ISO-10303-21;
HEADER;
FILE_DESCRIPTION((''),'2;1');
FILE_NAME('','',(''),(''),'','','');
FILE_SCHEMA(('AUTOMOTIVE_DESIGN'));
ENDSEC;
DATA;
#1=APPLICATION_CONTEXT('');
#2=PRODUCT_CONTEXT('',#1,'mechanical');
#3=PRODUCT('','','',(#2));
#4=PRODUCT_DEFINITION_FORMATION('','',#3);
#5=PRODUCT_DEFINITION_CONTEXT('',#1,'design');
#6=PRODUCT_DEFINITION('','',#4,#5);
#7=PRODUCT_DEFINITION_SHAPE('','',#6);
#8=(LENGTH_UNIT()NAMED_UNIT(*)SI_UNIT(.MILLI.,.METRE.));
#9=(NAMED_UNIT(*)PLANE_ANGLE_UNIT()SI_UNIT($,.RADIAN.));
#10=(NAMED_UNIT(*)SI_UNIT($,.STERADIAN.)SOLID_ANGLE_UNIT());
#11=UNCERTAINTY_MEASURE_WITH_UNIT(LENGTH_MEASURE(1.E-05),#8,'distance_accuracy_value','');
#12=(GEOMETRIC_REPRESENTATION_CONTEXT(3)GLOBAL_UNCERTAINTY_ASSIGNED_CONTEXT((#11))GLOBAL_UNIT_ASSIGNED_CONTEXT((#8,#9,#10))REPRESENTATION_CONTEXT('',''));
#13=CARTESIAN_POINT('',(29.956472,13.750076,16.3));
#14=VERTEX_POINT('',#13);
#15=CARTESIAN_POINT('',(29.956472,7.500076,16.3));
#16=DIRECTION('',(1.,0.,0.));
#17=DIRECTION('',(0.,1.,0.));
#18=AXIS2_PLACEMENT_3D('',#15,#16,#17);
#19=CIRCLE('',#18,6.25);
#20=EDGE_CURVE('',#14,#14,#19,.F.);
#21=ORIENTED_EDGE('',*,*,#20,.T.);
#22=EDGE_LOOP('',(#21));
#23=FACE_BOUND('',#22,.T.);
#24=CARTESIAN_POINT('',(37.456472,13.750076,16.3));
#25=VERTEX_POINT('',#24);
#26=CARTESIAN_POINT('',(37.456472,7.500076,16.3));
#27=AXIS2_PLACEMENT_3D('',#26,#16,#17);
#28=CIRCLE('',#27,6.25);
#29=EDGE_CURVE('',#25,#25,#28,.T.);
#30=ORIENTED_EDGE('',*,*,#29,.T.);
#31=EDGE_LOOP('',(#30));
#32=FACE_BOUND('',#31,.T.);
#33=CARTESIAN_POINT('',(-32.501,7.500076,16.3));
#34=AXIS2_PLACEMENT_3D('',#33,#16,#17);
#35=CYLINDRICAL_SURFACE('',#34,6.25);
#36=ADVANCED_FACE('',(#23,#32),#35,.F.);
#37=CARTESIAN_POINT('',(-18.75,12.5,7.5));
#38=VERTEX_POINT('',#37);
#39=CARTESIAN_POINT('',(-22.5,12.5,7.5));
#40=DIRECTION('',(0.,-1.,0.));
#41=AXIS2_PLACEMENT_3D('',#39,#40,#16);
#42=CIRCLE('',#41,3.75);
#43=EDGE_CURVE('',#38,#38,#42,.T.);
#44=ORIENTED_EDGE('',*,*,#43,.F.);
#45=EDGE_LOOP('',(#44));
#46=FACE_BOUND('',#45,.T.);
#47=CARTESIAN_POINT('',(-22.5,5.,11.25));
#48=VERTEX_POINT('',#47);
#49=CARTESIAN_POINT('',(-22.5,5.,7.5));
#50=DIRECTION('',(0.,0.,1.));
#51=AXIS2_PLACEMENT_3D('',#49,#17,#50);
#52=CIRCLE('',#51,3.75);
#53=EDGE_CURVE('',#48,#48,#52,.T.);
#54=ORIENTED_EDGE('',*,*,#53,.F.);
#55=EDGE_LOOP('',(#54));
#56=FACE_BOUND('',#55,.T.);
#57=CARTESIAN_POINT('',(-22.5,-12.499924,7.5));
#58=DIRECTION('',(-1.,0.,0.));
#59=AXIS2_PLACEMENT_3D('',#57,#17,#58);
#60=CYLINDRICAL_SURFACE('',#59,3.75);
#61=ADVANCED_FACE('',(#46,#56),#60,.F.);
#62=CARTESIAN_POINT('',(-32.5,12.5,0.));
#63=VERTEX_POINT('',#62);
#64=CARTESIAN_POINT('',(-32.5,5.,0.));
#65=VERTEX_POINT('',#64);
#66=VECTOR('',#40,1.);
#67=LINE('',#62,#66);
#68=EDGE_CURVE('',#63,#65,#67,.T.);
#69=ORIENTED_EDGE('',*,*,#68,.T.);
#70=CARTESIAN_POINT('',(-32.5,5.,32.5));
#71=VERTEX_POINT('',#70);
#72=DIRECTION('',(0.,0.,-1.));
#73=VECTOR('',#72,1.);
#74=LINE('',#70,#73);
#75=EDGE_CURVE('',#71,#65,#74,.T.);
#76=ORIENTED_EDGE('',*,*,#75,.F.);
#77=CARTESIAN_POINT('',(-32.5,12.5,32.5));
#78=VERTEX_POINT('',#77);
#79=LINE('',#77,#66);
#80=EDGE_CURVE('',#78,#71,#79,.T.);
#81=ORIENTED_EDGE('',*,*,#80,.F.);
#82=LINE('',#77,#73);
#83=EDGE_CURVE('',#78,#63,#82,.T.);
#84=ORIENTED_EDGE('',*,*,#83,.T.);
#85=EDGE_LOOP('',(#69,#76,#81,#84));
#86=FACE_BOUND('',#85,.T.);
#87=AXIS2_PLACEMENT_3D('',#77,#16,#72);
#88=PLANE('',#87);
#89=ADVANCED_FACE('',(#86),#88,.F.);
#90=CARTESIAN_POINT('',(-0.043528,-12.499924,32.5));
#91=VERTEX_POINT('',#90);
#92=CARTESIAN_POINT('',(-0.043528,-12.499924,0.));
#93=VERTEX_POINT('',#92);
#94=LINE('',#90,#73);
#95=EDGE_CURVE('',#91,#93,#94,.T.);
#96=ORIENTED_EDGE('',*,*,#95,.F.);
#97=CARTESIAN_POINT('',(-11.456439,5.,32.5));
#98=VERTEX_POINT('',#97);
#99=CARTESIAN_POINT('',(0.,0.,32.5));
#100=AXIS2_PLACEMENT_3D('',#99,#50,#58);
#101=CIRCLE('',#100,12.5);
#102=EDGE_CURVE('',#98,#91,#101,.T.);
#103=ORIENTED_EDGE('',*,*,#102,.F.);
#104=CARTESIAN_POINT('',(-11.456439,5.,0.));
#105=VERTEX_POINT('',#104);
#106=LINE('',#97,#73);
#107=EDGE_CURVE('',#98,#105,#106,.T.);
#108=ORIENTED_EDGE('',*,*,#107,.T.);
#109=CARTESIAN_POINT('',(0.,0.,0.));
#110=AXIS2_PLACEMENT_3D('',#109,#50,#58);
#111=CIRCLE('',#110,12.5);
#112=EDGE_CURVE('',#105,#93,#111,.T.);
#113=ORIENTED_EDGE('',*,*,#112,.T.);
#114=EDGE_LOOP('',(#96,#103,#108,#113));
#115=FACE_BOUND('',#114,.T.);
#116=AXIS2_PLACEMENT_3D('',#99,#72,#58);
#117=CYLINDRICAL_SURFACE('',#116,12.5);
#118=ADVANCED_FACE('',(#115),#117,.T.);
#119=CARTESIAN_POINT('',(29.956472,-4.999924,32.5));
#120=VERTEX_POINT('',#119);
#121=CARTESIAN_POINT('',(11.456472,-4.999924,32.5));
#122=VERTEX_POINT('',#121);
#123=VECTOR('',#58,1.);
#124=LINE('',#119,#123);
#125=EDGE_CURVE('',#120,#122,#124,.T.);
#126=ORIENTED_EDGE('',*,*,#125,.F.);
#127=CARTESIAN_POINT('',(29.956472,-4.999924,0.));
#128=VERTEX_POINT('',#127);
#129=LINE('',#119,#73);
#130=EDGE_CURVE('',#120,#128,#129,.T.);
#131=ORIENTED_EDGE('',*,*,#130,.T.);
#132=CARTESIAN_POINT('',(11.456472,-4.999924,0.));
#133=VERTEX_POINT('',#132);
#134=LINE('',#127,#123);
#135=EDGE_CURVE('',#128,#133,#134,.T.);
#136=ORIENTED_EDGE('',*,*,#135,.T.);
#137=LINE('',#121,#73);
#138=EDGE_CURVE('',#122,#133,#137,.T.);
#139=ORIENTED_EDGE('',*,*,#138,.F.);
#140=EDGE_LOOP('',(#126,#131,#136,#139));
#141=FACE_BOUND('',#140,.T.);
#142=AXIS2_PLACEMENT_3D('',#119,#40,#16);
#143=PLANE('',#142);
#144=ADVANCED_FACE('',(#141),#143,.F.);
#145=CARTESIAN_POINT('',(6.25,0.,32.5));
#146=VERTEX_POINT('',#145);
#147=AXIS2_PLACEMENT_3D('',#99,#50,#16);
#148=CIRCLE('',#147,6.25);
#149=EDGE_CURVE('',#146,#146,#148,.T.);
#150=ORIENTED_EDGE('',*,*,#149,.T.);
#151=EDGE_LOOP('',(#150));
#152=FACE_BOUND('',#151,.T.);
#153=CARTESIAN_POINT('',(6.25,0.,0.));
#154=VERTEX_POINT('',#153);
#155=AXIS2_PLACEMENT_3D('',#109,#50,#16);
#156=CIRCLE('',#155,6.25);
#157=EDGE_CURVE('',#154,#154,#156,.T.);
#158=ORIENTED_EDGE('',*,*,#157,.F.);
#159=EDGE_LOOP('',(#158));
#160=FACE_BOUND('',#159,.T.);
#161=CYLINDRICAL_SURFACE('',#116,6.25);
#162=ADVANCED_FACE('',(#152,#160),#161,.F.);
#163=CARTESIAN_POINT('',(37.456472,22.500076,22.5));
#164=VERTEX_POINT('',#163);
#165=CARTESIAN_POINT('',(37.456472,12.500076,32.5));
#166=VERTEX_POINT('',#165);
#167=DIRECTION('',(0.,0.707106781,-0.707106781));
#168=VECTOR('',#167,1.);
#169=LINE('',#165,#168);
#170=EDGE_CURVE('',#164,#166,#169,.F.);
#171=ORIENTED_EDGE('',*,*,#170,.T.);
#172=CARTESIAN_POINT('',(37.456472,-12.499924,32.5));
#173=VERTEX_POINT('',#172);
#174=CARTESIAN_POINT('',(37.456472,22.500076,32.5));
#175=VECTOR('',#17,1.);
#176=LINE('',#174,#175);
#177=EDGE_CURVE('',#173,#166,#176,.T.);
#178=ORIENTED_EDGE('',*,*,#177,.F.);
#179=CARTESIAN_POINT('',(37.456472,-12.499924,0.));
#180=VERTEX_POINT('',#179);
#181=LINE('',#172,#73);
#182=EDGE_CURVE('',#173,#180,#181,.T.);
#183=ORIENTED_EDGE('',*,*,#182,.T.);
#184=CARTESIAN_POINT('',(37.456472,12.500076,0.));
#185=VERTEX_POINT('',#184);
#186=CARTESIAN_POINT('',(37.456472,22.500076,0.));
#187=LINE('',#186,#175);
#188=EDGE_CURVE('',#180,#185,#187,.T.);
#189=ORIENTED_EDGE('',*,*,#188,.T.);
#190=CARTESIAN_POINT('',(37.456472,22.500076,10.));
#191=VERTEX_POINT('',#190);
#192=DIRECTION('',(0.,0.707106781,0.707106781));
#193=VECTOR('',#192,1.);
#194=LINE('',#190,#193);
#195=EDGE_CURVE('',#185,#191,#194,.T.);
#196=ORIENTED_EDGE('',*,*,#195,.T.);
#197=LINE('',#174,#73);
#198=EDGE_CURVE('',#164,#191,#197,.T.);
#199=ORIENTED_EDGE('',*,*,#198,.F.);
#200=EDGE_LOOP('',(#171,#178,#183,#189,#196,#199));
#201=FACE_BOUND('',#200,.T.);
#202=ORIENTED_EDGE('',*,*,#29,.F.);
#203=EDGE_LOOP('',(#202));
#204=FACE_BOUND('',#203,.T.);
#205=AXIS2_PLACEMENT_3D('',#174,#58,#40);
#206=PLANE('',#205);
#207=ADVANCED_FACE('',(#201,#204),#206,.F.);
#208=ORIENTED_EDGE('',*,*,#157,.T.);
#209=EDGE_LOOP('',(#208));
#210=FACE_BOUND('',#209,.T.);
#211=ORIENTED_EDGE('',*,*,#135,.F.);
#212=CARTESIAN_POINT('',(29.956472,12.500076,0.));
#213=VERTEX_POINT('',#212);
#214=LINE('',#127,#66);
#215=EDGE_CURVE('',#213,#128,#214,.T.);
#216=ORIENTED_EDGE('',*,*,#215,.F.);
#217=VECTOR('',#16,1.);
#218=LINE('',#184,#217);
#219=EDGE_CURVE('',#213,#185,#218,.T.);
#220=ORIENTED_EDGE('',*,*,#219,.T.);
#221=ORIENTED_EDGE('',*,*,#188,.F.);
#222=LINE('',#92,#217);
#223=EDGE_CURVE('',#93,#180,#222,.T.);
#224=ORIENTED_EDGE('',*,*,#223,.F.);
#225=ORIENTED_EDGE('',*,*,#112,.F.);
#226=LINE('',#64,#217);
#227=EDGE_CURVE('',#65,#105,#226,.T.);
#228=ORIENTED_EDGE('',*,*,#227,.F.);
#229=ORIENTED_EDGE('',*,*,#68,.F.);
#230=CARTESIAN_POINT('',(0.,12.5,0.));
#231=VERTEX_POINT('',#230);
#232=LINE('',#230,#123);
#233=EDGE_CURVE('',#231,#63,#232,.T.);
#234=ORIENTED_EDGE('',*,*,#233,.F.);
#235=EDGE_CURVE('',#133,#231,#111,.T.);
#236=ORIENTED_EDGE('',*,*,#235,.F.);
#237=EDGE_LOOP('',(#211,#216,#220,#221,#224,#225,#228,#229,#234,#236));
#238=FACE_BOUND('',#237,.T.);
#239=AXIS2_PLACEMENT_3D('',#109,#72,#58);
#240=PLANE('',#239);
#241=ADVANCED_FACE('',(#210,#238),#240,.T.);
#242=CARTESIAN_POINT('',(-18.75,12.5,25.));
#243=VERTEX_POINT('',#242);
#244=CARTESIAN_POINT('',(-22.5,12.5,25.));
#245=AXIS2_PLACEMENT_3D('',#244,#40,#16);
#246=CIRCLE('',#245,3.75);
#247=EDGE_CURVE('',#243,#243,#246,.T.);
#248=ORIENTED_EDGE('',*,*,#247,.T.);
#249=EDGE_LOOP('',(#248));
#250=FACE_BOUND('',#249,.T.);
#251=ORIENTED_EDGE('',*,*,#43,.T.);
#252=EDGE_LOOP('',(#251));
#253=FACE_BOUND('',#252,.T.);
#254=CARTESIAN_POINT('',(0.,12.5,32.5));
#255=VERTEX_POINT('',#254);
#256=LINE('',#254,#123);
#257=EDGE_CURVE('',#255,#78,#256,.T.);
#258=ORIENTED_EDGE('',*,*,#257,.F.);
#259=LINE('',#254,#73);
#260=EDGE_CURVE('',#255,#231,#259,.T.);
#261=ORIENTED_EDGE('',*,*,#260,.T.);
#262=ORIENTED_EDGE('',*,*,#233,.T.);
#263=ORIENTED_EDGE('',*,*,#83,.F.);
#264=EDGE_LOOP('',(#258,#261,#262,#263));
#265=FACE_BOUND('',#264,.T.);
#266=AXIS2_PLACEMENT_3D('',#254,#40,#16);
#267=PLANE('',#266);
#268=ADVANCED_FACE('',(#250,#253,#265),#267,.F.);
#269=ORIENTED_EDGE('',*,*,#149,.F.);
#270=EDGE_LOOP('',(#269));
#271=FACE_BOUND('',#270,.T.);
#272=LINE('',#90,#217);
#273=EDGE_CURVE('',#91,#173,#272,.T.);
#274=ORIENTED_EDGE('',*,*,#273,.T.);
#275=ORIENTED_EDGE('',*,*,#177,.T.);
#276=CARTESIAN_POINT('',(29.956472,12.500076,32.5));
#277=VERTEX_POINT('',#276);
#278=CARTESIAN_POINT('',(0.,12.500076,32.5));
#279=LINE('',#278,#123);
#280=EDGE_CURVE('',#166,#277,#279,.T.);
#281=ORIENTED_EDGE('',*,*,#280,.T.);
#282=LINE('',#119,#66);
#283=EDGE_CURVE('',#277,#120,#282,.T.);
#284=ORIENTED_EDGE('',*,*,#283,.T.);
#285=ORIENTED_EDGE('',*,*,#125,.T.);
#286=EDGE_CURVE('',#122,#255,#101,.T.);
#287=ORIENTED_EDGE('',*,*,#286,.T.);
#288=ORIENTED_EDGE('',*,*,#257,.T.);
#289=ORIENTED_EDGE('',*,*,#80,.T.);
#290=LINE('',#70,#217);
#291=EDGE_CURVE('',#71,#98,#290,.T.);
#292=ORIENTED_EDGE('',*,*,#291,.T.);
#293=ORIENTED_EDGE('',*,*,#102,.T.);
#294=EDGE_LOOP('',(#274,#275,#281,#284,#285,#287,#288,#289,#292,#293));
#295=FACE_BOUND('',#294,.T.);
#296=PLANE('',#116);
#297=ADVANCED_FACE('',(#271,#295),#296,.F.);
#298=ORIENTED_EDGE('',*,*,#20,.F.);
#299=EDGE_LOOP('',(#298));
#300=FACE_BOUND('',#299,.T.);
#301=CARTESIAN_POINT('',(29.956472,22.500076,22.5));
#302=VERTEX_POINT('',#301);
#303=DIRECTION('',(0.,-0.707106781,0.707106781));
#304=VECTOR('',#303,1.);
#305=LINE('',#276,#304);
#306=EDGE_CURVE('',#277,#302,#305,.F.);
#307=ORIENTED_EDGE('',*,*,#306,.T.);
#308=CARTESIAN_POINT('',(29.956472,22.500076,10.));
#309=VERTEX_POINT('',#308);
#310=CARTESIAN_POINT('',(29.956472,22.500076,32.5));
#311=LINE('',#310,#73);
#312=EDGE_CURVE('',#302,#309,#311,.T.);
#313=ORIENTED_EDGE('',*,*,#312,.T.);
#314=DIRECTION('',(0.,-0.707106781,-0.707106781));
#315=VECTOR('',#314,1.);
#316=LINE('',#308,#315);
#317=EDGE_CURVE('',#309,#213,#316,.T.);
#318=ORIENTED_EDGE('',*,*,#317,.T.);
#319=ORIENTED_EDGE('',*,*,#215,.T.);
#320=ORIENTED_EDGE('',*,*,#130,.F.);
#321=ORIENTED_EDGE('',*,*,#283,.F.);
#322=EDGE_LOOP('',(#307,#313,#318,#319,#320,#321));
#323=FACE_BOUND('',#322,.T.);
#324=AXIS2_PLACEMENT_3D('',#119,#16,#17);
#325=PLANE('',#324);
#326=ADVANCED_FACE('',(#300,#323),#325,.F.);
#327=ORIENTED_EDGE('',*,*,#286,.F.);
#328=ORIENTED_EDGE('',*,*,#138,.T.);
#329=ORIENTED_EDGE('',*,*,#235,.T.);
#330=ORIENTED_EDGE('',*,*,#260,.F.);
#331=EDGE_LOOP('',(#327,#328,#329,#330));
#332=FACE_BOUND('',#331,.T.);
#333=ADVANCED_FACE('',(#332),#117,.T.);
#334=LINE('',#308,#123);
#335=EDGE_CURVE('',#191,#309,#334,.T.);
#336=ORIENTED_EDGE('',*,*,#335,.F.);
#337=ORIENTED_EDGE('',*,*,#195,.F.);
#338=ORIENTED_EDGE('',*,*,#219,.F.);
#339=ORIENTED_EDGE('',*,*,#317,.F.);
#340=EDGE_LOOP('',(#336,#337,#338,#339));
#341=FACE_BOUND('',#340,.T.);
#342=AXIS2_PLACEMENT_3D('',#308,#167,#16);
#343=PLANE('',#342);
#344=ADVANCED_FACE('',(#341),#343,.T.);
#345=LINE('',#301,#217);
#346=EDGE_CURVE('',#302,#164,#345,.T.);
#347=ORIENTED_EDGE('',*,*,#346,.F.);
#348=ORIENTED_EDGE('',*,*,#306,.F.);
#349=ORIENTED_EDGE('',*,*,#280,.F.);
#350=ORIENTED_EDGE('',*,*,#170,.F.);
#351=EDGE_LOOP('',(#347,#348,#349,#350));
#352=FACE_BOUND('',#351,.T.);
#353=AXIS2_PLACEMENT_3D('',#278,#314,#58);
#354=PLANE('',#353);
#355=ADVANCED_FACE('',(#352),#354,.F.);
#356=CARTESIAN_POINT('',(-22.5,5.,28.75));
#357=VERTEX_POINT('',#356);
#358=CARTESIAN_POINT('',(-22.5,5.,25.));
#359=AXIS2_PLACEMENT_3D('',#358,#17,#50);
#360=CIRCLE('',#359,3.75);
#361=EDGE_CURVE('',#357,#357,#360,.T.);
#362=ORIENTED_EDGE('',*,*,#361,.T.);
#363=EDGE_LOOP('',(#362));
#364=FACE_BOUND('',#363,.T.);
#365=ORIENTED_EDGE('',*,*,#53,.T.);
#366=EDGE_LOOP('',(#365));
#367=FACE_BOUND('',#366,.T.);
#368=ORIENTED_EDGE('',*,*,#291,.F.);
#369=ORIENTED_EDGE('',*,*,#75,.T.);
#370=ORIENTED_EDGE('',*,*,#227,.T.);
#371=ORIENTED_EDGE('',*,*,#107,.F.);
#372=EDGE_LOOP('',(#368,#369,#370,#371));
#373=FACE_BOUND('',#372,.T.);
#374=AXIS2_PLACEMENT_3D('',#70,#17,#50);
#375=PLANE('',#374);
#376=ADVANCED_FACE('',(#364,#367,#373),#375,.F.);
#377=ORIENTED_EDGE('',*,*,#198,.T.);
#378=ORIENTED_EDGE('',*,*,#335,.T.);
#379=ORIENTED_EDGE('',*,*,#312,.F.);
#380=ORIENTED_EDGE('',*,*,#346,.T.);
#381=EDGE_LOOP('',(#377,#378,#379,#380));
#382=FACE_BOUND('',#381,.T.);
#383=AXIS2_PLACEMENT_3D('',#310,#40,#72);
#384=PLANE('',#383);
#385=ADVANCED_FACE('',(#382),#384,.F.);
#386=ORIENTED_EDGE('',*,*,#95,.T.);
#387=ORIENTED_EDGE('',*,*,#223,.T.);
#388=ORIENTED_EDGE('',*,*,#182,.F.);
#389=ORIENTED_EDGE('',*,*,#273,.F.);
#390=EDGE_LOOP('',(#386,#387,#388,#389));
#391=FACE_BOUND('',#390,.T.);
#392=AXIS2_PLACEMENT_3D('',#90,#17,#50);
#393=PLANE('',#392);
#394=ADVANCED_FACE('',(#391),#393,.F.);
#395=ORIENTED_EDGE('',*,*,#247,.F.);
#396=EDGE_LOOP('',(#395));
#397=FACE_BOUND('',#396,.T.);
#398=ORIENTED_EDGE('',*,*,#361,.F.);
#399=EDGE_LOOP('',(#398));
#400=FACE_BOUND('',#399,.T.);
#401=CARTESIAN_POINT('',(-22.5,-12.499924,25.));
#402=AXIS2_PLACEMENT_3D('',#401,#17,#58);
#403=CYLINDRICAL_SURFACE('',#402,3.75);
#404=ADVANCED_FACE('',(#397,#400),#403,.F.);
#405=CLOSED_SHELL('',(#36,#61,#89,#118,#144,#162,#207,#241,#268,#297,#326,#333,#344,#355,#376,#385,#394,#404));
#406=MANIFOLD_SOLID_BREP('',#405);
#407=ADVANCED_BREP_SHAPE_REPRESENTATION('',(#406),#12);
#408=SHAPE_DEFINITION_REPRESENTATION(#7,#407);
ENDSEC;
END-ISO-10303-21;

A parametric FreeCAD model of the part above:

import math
import FreeCAD as App
import Part
import Sketcher


def edges_at(feature, points):
    """Names of the edges that pass closest to the given points."""
    edges = feature.Shape.Edges
    near = lambda p: min(range(len(edges)), key=lambda i: edges[i].distToShape(Part.Vertex(*p))[0])
    return sorted({f"Edge{near(p) + 1}" for p in points})

doc = App.newDocument("Part")
params = doc.addObject("Spreadsheet::Sheet", "Params")
for row, (alias, value) in enumerate([
    ("sketch1_diameter", "12.5 mm"),
    ("sketch1_radius", "12.5 mm"),
    ("sketch1_height", "35 mm"),
    ("sketch1_width", "32.5 mm"),
    ("sketch1_width2", "37.5 mm"),
    ("pad1_length", "32.5 mm"),
    ("sketch2_diameter", "7.5 mm"),
    ("sketch3_diameter", "12.5 mm"),
    ("chamfer_size", "10 mm"),
], start=1):
    params.set(f"A{row}", alias)
    params.set(f"B{row}", "=" + value)
    params.setAlias(f"B{row}", alias)

body = doc.addObject("PartDesign::Body", "Body")

sketch1 = body.newObject("Sketcher::SketchObject", "Sketch")
sketch1.AttachmentSupport = (doc.getObject("XY_Plane"), [""])
sketch1.MapMode = "FlatFace"
sketch1.addGeometry(Part.LineSegment(App.Vector(0, 12, 0), App.Vector(-32, 12, 0)), False)
sketch1.addGeometry(Part.LineSegment(App.Vector(-32, 12, 0), App.Vector(-32, 5, 0)), False)
sketch1.addGeometry(Part.LineSegment(App.Vector(-32, 5, 0), App.Vector(-11, 5, 0)), False)
sketch1.addGeometry(Part.ArcOfCircle(Part.Circle(App.Vector(0, 0, 0), App.Vector(0, 0, 1), 12), math.radians(156), math.radians(270)), False)
sketch1.addGeometry(Part.LineSegment(App.Vector(0, -12, 0), App.Vector(37, -12, 0)), False)
sketch1.addGeometry(Part.LineSegment(App.Vector(37, -12, 0), App.Vector(37, 23, 0)), False)
sketch1.addGeometry(Part.LineSegment(App.Vector(37, 23, 0), App.Vector(30, 23, 0)), False)
sketch1.addGeometry(Part.LineSegment(App.Vector(30, 23, 0), App.Vector(30, -5, 0)), False)
sketch1.addGeometry(Part.LineSegment(App.Vector(30, -5, 0), App.Vector(11, -5, 0)), False)
sketch1.addGeometry(Part.ArcOfCircle(Part.Circle(App.Vector(0, 0, 0), App.Vector(0, 0, 1), 12), math.radians(-24), math.radians(90)), False)
sketch1.addGeometry(Part.Circle(App.Vector(0, 0, 0), App.Vector(0, 0, 1), 6), False)
sketch1.addConstraint(Sketcher.Constraint("Coincident", 0, 2, 1, 1))
sketch1.addConstraint(Sketcher.Constraint("Coincident", 1, 2, 2, 1))
sketch1.addConstraint(Sketcher.Constraint("Coincident", 2, 2, 3, 1))
sketch1.addConstraint(Sketcher.Constraint("Coincident", 3, 2, 4, 1))
sketch1.addConstraint(Sketcher.Constraint("Coincident", 4, 2, 5, 1))
sketch1.addConstraint(Sketcher.Constraint("Coincident", 5, 2, 6, 1))
sketch1.addConstraint(Sketcher.Constraint("Coincident", 6, 2, 7, 1))
sketch1.addConstraint(Sketcher.Constraint("Coincident", 7, 2, 8, 1))
sketch1.addConstraint(Sketcher.Constraint("Coincident", 8, 2, 9, 1))
sketch1.addConstraint(Sketcher.Constraint("Tangent", 9, 2, 0, 1))
sketch1.addConstraint(Sketcher.Constraint("Horizontal", 0))
sketch1.addConstraint(Sketcher.Constraint("Vertical", 1))
sketch1.addConstraint(Sketcher.Constraint("Horizontal", 2))
sketch1.addConstraint(Sketcher.Constraint("Horizontal", 4))
sketch1.addConstraint(Sketcher.Constraint("Vertical", 5))
sketch1.addConstraint(Sketcher.Constraint("Horizontal", 6))
sketch1.addConstraint(Sketcher.Constraint("Vertical", 7))
sketch1.addConstraint(Sketcher.Constraint("Horizontal", 8))
sketch1.addConstraint(Sketcher.Constraint("Coincident", 3, 3, -1, 1))
sketch1.addConstraint(Sketcher.Constraint("Coincident", 9, 3, -1, 1))
sketch1.addConstraint(Sketcher.Constraint("Coincident", 10, 3, -1, 1))
sketch1.addConstraint(Sketcher.Constraint("Equal", 3, 9))
sketch1.addConstraint(Sketcher.Constraint("Equal", 6, 1))
sketch1.addConstraint(Sketcher.Constraint("Diameter", 10, 12.5))
sketch1.addConstraint(Sketcher.Constraint("Radius", 3, 12.5))
sketch1.addConstraint(Sketcher.Constraint("DistanceY", 5, 1, 5, 2, 35.0))
sketch1.addConstraint(Sketcher.Constraint("DistanceX", 0, 2, 0, 1, 32.5))
sketch1.addConstraint(Sketcher.Constraint("DistanceX", 4, 1, 4, 2, 37.5))
sketch1.addConstraint(Sketcher.Constraint("DistanceX", 6, 2, 6, 1, 7.5))
sketch1.addConstraint(Sketcher.Constraint("DistanceX", 8, 2, 8, 1, 18.5))
sketch1.addConstraint(Sketcher.Constraint("DistanceY", 7, 2, 7, 1, 27.5))
sketch1.setExpression("Constraints[23]", "Params.sketch1_diameter")
sketch1.setExpression("Constraints[24]", "Params.sketch1_radius")
sketch1.setExpression("Constraints[25]", "Params.sketch1_height")
sketch1.setExpression("Constraints[26]", "Params.sketch1_width")
sketch1.setExpression("Constraints[27]", "Params.sketch1_width2")
pad1 = body.newObject("PartDesign::Pad", "Pad")
pad1.Profile = sketch1
pad1.setExpression("Length", "Params.pad1_length")

sketch2 = body.newObject("Sketcher::SketchObject", "Sketch001")
sketch2.AttachmentSupport = (doc.getObject("XZ_Plane"), [""])
sketch2.MapMode = "FlatFace"
sketch2.AttachmentOffset = App.Placement(App.Vector(0, 0, -12.5), App.Rotation())
sketch2.addGeometry(Part.Circle(App.Vector(-22.5, 7.5, 0), App.Vector(0, 0, 1), 3.8), False)
sketch2.addGeometry(Part.Circle(App.Vector(-22.5, 25, 0), App.Vector(0, 0, 1), 3.8), False)
sketch2.addConstraint(Sketcher.Constraint("Equal", 0, 1))
sketch2.addConstraint(Sketcher.Constraint("Vertical", 0, 3, 1, 3))
sketch2.addConstraint(Sketcher.Constraint("Diameter", 0, 7.5))
sketch2.addConstraint(Sketcher.Constraint("DistanceY", -1, 1, 1, 3, 25.0))
sketch2.addConstraint(Sketcher.Constraint("DistanceX", 0, 3, -1, 1, 22.5))
sketch2.addConstraint(Sketcher.Constraint("DistanceY", -1, 1, 0, 3, 7.5))
sketch2.setExpression("Constraints[2]", "Params.sketch2_diameter")
pocket1 = body.newObject("PartDesign::Pocket", "Pocket")
pocket1.Profile = sketch2
pocket1.Type = "ThroughAll"
pocket1.Midplane = True

sketch3 = body.newObject("Sketcher::SketchObject", "Sketch002")
sketch3.AttachmentSupport = (doc.getObject("YZ_Plane"), [""])
sketch3.MapMode = "FlatFace"
sketch3.AttachmentOffset = App.Placement(App.Vector(0, 0, 37.456472), App.Rotation())
sketch3.addGeometry(Part.Circle(App.Vector(8, 16, 0), App.Vector(0, 0, 1), 6), False)
sketch3.addConstraint(Sketcher.Constraint("Diameter", 0, 12.5))
sketch3.addConstraint(Sketcher.Constraint("DistanceY", -1, 1, 0, 3, 16.3))
sketch3.addConstraint(Sketcher.Constraint("DistanceX", -1, 1, 0, 3, 7.500076))
sketch3.setExpression("Constraints[0]", "Params.sketch3_diameter")
pocket2 = body.newObject("PartDesign::Pocket", "Pocket001")
pocket2.Profile = sketch3
pocket2.Type = "UpToFirst"
doc.recompute()

chamfer = body.newObject("PartDesign::Chamfer", "Chamfer")
chamfer.Base = (pocket2, edges_at(pocket2, [(33.706, 22.5, 0), (33.706, 22.5, 32.5)]))
chamfer.setExpression("Size", "Params.chamfer_size")

doc.recompute()
